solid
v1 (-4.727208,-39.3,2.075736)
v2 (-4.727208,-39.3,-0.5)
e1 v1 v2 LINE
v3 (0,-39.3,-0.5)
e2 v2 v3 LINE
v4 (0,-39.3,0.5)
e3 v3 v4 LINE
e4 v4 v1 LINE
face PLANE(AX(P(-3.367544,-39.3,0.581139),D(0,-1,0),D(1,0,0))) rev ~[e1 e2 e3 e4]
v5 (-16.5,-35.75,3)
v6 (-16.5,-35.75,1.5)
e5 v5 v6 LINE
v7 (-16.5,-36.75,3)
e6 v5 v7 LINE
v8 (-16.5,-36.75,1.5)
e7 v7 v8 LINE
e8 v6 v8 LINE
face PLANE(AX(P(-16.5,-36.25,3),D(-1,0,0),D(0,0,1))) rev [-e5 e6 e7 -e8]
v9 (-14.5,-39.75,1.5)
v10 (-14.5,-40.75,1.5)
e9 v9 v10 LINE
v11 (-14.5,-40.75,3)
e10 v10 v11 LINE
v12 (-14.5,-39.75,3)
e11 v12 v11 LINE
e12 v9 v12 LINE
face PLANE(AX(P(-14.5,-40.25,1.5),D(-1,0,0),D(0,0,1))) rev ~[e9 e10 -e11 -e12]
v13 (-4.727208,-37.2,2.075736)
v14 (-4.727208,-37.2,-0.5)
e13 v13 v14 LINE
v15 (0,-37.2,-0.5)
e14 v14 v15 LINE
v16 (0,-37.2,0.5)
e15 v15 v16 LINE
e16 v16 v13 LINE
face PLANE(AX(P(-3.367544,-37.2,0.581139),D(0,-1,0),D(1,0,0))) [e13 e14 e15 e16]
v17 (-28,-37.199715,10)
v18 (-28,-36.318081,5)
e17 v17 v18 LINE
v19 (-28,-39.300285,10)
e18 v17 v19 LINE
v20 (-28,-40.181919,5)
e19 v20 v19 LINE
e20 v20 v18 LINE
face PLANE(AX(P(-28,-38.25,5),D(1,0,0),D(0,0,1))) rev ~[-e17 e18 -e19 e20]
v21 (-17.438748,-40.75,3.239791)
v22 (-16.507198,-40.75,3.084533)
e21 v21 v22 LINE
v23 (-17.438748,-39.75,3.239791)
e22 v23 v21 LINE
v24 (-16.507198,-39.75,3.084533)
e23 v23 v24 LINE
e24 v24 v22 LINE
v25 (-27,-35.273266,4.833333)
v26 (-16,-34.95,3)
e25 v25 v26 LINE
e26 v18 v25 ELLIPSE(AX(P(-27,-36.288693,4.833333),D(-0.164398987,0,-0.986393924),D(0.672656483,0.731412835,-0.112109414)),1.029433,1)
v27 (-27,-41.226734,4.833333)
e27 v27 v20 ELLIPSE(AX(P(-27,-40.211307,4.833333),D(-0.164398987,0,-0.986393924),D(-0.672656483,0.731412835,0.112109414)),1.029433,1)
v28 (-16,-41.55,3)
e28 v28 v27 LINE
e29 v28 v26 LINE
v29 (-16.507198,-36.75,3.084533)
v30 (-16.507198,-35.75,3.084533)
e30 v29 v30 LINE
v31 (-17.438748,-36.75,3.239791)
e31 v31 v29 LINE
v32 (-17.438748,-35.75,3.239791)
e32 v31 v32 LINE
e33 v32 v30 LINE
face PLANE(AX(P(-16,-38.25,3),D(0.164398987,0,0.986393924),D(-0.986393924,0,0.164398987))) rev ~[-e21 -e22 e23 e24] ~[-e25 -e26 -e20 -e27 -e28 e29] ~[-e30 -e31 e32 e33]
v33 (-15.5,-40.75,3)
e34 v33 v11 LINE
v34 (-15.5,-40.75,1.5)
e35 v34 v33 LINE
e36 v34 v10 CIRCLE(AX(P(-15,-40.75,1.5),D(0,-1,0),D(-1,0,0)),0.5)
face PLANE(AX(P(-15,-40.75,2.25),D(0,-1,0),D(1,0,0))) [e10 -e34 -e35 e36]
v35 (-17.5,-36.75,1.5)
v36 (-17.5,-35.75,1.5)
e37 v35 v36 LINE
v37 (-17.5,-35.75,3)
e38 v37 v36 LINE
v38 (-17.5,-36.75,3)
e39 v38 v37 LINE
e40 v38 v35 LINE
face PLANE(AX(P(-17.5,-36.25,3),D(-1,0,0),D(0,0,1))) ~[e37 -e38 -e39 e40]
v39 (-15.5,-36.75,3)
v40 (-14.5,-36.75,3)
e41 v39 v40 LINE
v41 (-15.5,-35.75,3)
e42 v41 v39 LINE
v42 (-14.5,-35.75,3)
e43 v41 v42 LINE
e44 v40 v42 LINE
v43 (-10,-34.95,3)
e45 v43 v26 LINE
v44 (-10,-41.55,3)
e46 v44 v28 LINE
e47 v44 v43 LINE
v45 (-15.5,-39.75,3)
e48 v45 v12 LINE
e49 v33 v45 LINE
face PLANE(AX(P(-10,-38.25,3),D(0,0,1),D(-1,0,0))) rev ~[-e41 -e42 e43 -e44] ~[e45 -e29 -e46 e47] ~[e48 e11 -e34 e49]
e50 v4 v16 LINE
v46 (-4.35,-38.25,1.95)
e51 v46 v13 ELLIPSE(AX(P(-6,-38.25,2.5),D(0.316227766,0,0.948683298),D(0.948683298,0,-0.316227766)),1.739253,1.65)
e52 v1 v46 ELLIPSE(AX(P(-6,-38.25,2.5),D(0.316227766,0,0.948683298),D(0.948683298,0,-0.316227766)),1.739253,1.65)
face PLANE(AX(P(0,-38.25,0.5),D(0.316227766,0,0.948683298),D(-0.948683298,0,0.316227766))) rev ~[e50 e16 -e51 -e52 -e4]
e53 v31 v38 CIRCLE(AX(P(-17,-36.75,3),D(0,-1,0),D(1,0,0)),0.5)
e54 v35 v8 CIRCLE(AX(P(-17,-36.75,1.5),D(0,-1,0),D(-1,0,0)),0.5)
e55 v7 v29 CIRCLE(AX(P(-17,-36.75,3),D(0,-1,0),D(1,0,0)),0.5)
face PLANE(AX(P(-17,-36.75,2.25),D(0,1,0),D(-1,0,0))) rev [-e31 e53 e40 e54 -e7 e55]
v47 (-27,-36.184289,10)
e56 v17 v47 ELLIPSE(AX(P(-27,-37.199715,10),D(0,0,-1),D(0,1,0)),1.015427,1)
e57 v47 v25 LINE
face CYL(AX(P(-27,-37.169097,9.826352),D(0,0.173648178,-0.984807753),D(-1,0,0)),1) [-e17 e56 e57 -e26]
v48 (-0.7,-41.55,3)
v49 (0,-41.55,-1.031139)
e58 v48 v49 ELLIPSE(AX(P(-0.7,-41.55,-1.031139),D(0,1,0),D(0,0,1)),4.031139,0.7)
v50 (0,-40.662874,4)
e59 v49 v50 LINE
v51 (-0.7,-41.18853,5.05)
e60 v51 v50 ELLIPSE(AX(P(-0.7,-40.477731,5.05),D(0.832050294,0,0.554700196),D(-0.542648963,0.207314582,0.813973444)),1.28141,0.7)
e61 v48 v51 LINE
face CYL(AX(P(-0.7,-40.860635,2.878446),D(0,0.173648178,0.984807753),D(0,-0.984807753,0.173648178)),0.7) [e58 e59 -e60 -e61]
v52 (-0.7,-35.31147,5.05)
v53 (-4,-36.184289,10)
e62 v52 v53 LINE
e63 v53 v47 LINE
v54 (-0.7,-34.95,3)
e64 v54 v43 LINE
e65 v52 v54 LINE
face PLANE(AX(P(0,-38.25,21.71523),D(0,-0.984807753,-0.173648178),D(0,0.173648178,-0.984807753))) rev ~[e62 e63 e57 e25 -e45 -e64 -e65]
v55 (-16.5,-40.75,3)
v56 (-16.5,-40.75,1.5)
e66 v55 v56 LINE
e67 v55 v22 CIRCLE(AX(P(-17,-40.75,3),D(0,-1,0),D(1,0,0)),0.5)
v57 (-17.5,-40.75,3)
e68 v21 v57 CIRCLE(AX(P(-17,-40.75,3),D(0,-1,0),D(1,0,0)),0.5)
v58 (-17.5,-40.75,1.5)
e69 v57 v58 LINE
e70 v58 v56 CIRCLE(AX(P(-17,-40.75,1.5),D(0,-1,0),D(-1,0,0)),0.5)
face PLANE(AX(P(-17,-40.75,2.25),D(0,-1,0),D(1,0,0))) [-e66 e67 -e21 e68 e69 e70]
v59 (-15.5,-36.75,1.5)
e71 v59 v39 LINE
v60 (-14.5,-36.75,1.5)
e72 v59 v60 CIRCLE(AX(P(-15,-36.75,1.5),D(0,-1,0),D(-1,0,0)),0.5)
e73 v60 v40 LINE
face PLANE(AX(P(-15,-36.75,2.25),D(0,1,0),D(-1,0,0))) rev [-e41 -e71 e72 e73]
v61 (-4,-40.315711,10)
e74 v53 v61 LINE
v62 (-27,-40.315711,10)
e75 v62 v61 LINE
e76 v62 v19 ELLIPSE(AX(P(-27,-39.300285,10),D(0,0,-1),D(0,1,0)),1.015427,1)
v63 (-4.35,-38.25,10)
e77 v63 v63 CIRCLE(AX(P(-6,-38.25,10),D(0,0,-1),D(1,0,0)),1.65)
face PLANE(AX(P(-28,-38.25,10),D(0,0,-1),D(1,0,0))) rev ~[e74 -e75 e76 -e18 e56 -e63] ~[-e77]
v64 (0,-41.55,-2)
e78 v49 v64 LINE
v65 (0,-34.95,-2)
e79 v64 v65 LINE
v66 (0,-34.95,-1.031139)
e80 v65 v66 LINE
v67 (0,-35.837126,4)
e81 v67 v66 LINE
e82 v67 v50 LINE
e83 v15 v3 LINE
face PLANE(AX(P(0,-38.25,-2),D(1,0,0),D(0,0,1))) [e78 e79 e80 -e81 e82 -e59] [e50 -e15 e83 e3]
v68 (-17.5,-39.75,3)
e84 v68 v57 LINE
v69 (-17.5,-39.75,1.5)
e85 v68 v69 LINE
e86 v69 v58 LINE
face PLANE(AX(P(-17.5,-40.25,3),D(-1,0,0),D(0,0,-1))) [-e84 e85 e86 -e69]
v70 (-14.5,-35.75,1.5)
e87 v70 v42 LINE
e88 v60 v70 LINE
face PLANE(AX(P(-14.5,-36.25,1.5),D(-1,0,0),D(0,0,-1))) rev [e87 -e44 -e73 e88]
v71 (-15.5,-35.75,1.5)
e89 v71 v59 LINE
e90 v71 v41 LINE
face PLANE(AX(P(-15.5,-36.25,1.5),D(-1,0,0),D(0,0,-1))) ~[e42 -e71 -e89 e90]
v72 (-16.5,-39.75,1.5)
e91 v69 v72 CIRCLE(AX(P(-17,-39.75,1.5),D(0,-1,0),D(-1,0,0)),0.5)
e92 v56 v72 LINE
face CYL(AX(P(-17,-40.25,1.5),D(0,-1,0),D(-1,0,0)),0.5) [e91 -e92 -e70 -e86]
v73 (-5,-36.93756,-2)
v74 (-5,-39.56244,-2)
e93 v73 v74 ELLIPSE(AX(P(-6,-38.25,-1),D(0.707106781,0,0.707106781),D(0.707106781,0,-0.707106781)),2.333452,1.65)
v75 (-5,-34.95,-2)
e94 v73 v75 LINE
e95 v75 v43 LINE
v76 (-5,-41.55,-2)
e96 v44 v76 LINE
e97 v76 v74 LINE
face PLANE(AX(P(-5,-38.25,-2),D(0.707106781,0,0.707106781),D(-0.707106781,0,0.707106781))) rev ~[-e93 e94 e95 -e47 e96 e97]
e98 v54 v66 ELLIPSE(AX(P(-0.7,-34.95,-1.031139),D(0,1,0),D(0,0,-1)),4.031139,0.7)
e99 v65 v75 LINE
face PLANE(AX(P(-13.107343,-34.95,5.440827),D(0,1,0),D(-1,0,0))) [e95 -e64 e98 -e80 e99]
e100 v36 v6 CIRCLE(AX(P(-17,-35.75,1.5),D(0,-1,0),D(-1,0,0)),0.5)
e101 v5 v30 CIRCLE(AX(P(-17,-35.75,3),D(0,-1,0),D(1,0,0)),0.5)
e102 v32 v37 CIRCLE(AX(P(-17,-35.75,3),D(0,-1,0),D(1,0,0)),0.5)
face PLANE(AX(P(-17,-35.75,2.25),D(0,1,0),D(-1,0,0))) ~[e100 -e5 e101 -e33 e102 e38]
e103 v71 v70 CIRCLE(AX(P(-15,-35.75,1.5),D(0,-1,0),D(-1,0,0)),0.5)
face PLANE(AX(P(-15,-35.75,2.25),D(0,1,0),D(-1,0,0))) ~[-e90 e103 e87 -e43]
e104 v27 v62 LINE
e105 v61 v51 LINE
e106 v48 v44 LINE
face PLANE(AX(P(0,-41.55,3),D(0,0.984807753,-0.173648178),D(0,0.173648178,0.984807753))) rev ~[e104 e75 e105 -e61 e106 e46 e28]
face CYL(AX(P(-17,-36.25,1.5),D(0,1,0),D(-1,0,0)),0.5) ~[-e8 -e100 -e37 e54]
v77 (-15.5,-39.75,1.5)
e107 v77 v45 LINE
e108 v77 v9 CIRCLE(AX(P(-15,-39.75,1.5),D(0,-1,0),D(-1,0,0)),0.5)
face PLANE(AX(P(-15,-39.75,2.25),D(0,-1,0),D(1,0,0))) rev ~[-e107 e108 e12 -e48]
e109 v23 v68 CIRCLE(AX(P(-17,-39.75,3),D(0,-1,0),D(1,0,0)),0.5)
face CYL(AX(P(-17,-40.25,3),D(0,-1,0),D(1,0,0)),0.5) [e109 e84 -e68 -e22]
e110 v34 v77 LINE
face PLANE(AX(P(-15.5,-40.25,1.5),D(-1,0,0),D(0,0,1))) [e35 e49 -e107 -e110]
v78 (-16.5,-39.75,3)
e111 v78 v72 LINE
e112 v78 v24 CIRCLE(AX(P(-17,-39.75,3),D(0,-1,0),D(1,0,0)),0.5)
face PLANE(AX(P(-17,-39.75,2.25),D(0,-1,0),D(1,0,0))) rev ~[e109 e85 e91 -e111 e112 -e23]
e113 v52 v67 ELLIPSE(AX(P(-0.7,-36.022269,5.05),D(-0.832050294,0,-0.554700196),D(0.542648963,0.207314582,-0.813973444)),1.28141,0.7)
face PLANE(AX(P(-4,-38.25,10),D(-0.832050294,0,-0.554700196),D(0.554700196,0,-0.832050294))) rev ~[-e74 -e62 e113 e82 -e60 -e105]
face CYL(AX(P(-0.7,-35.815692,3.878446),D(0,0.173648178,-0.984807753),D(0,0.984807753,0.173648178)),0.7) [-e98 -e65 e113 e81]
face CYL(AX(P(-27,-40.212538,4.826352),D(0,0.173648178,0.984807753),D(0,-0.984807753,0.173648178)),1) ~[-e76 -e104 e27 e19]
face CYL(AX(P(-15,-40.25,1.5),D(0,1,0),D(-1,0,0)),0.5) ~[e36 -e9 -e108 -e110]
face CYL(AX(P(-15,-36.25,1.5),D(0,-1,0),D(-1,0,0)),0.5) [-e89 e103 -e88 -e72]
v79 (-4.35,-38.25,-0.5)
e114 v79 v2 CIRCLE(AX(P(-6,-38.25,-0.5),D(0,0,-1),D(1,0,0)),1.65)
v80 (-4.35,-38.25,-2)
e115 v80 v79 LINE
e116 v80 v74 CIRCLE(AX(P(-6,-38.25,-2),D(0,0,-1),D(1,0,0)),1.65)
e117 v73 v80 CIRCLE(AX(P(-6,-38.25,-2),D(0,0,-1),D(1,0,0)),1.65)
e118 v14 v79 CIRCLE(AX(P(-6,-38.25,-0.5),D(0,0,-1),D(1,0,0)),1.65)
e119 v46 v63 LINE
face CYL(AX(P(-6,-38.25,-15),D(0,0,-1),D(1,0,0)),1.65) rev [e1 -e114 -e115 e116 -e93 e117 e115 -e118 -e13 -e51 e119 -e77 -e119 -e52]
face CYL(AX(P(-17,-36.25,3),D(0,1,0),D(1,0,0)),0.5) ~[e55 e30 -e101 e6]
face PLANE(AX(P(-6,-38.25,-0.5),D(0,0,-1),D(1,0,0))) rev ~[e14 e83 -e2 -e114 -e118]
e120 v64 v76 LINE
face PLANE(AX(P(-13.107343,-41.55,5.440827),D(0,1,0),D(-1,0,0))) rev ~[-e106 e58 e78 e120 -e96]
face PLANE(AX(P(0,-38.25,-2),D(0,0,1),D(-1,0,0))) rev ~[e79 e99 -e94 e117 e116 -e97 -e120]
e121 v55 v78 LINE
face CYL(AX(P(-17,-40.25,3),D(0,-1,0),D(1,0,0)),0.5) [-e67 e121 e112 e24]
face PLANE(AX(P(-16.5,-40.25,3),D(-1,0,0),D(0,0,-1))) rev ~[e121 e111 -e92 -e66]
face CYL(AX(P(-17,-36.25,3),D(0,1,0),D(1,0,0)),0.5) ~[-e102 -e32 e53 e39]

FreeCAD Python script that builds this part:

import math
import FreeCAD as App
import Part
import Sketcher

V = App.Vector
Q = App.Units.Quantity


def edges_at(feature, points):
    """Names of the edges that pass closest to the given points."""
    edges = feature.Shape.Edges
    near = lambda p: min(range(len(edges)), key=lambda i: edges[i].distToShape(Part.Vertex(*p))[0])
    return sorted({f"Edge{near(p) + 1}" for p in points})

doc = App.newDocument("Part")
params = doc.addObject("Spreadsheet::Sheet", "Params")
for row, (alias, value) in enumerate([
    ("sketch1_diameter", "3.3 mm"),
    ("pad1_length", "30 mm"),
    ("sketch2_width", "6 mm"),
    ("sketch2_height", "3 mm"),
    ("sketch2_height2", "1 mm"),
    ("pad2_length", "2.1 mm"),
    ("sketch3_width", "24 mm"),
    ("sketch3_width2", "6 mm"),
    ("sketch3_width3", "5 mm"),
    ("pad3_length", "6.6 mm"),
    ("sketch4_width", "26 mm"),
    ("sketch4_height", "3 mm"),
    ("sketch4_width2", "9.7 mm"),
    ("sketch5_radius", "0.5 mm"),
    ("sketch5_height", "1.5 mm"),
    ("pad4_length", "1 mm"),
    ("fillet_radius", "0.7 mm"),
    ("fillet2_radius", "1 mm"),
], start=1):
    params.set(f"A{row}", alias)
    params.set(f"B{row}", "=" + value)
    params.setAlias(f"B{row}", alias)

body = doc.addObject("PartDesign::Body", "Body")

sketch1 = doc.addObject("Sketcher::SketchObject", "Sketch")
body.addObject(sketch1)
sketch1.AttachmentSupport = (doc.XY_Plane, [""])
sketch1.MapMode = "FlatFace"
sketch1.AttachmentOffset = App.Placement(V(0, 0, -15), App.Rotation())
sketch1.addGeometry(Part.Circle(V(-6, 0, 0), V(0, 0, 1), 1.65), False)
sketch1.addConstraint([
    Sketcher.Constraint("PointOnObject", 0, 3, -1),
    Sketcher.Constraint("Diameter", 0, 3.3),
    Sketcher.Constraint("DistanceX", 0, 3, -1, 1, 6.0),
])
sketch1.setExpression("Constraints[1]", "Params.sketch1_diameter")
pad1 = doc.addObject("PartDesign::Pad", "Pad")
body.addObject(pad1)
pad1.Profile = sketch1
pad1.setExpression("Length", "Params.pad1_length")
body2 = doc.addObject("PartDesign::Body", "Body001")

sketch2 = doc.addObject("Sketcher::SketchObject", "Sketch001")
body2.addObject(sketch2)
sketch2.AttachmentSupport = (doc.getObject("XZ_Plane001"), [""])
sketch2.MapMode = "FlatFace"
sketch2.addGeometry([
    Part.LineSegment(V(-6, 2.5, 0), V(-6, -0.5, 0)),
    Part.LineSegment(V(-6, -0.5, 0), V(0, -0.5, 0)),
    Part.LineSegment(V(0, -0.5, 0), V(0, 0.5, 0)),
    Part.LineSegment(V(0, 0.5, 0), V(-6, 2.5, 0)),
], False)
sketch2.addConstraint([
    Sketcher.Constraint("Coincident", 0, 2, 1, 1),
    Sketcher.Constraint("Coincident", 1, 2, 2, 1),
    Sketcher.Constraint("Coincident", 2, 2, 3, 1),
    Sketcher.Constraint("Coincident", 3, 2, 0, 1),
    Sketcher.Constraint("Vertical", 0),
    Sketcher.Constraint("Horizontal", 1),
    Sketcher.Constraint("Vertical", 2),
    Sketcher.Constraint("Symmetric", 1, 2, 2, 2, -1, 1),
    Sketcher.Constraint("DistanceX", 1, 1, 1, 2, 6.0),
    Sketcher.Constraint("DistanceY", 0, 2, 0, 1, 3.0),
    Sketcher.Constraint("DistanceY", 2, 1, 2, 2, 1.0),
])
sketch2.setExpression("Constraints[8]", "Params.sketch2_width")
sketch2.setExpression("Constraints[9]", "Params.sketch2_height")
sketch2.setExpression("Constraints[10]", "Params.sketch2_height2")
pad2 = doc.addObject("PartDesign::Pad", "Pad001")
body2.addObject(pad2)
pad2.Profile = sketch2
pad2.setExpression("Length", "Params.pad2_length")
pad2.Midplane = True
body3 = doc.addObject("PartDesign::Body", "Body002")

sketch3 = doc.addObject("Sketcher::SketchObject", "Sketch002")
body3.addObject(sketch3)
sketch3.AttachmentSupport = (doc.getObject("XZ_Plane002"), [""])
sketch3.MapMode = "FlatFace"
sketch3.addGeometry([
    Part.LineSegment(V(0, -2, 0), V(0, 4, 0)),
    Part.LineSegment(V(0, 4, 0), V(-4, 10, 0)),
    Part.LineSegment(V(-4, 10, 0), V(-28, 10, 0)),
    Part.LineSegment(V(-28, 10, 0), V(-28, 5, 0)),
    Part.LineSegment(V(-28, 5, 0), V(-16, 3, 0)),
    Part.LineSegment(V(-16, 3, 0), V(-10, 3, 0)),
    Part.LineSegment(V(-10, 3, 0), V(-5, -2, 0)),
    Part.LineSegment(V(-5, -2, 0), V(0, -2, 0)),
], False)
sketch3.addConstraint([
    Sketcher.Constraint("Coincident", 0, 2, 1, 1),
    Sketcher.Constraint("Coincident", 1, 2, 2, 1),
    Sketcher.Constraint("Coincident", 2, 2, 3, 1),
    Sketcher.Constraint("Coincident", 3, 2, 4, 1),
    Sketcher.Constraint("Coincident", 4, 2, 5, 1),
    Sketcher.Constraint("Coincident", 5, 2, 6, 1),
    Sketcher.Constraint("Coincident", 6, 2, 7, 1),
    Sketcher.Constraint("Coincident", 7, 2, 0, 1),
    Sketcher.Constraint("Vertical", 0),
    Sketcher.Constraint("Horizontal", 2),
    Sketcher.Constraint("Vertical", 3),
    Sketcher.Constraint("Horizontal", 5),
    Sketcher.Constraint("Horizontal", 7),
    Sketcher.Constraint("PointOnObject", 0, 2, -2),
    Sketcher.Constraint("Equal", 5, 0),
    Sketcher.Constraint("Equal", 7, 3),
    Sketcher.Constraint("DistanceX", 2, 2, 2, 1, 24.0),
    Sketcher.Constraint("DistanceX", 5, 1, 5, 2, 6.0),
    Sketcher.Constraint("DistanceX", 7, 1, 7, 2, 5.0),
    Sketcher.Constraint("Angle", 6, Q("-45 deg")),
    Sketcher.Constraint("DistanceY", -1, 1, 0, 2, 4.0),
    Sketcher.Constraint("DistanceX", 1, 2, -1, 1, 4.0),
    Sketcher.Constraint("DistanceY", -1, 1, 1, 2, 10.0),
    Sketcher.Constraint("DistanceX", 4, 2, -1, 1, 16.0),
])
sketch3.setExpression("Constraints[16]", "Params.sketch3_width")
sketch3.setExpression("Constraints[17]", "Params.sketch3_width2")
sketch3.setExpression("Constraints[18]", "Params.sketch3_width3")
pad3 = doc.addObject("PartDesign::Pad", "Pad002")
body3.addObject(pad3)
pad3.Profile = sketch3
pad3.setExpression("Length", "Params.pad3_length")
pad3.Midplane = True

sketch4 = doc.addObject("Sketcher::SketchObject", "Sketch003")
body3.addObject(sketch4)
sketch4.AttachmentSupport = (doc.getObject("YZ_Plane002"), [""])
sketch4.MapMode = "FlatFace"
sketch4.addGeometry([
    Part.LineSegment(V(-3.3, 0, 0), V(-3.3, 3, 0)),
    Part.LineSegment(V(-3.3, 3, 0), V(0, 21.71523, 0)),
    Part.LineSegment(V(0, 21.71523, 0), V(3.3, 3, 0)),
    Part.LineSegment(V(3.3, 3, 0), V(3.3, 0, 0)),
    Part.LineSegment(V(3.3, 0, 0), V(13, 0, 0)),
    Part.LineSegment(V(13, 0, 0), V(13, 26, 0)),
    Part.LineSegment(V(13, 26, 0), V(-13, 26, 0)),
    Part.LineSegment(V(-13, 26, 0), V(-13, 0, 0)),
    Part.LineSegment(V(-13, 0, 0), V(-3.3, 0, 0)),
], False)
sketch4.addConstraint([
    Sketcher.Constraint("Coincident", 0, 2, 1, 1),
    Sketcher.Constraint("Coincident", 1, 2, 2, 1),
    Sketcher.Constraint("Coincident", 2, 2, 3, 1),
    Sketcher.Constraint("Coincident", 3, 2, 4, 1),
    Sketcher.Constraint("Coincident", 4, 2, 5, 1),
    Sketcher.Constraint("Coincident", 5, 2, 6, 1),
    Sketcher.Constraint("Coincident", 6, 2, 7, 1),
    Sketcher.Constraint("Coincident", 7, 2, 8, 1),
    Sketcher.Constraint("Coincident", 8, 2, 0, 1),
    Sketcher.Constraint("Vertical", 0),
    Sketcher.Constraint("Vertical", 3),
    Sketcher.Constraint("Horizontal", 4),
    Sketcher.Constraint("Vertical", 5),
    Sketcher.Constraint("Horizontal", 6),
    Sketcher.Constraint("Vertical", 7),
    Sketcher.Constraint("Horizontal", 8),
    Sketcher.Constraint("Symmetric", 4, 2, 7, 2, -1, 1),
    Sketcher.Constraint("Symmetric", 0, 2, 2, 2, -2),
    Sketcher.Constraint("PointOnObject", 1, 2, -2),
    Sketcher.Constraint("PointOnObject", 3, 2, -1),
    Sketcher.Constraint("Equal", 6, 5),
    Sketcher.Constraint("DistanceX", 6, 2, 6, 1, 26.0),
    Sketcher.Constraint("DistanceY", 0, 1, 0, 2, 3.0),
    Sketcher.Constraint("Angle", 1, Q("80 deg")),
    Sketcher.Constraint("DistanceX", 4, 1, 4, 2, 9.7),
])
sketch4.setExpression("Constraints[21]", "Params.sketch4_width")
sketch4.setExpression("Constraints[22]", "Params.sketch4_height")
sketch4.setExpression("Constraints[24]", "Params.sketch4_width2")
pocket1 = doc.addObject("PartDesign::Pocket", "Pocket")
body3.addObject(pocket1)
pocket1.Profile = sketch4
pocket1.Type = "ThroughAll"

sketch5 = doc.addObject("Sketcher::SketchObject", "Sketch004")
body3.addObject(sketch5)
sketch5.AttachmentSupport = (doc.getObject("XZ_Plane002"), [""])
sketch5.MapMode = "FlatFace"
sketch5.AttachmentOffset = App.Placement(V(0, 0, 2), App.Rotation())
sketch5.addGeometry([
    Part.ArcOfCircle(Part.Circle(V(-15, 1.5, 0), V(0, 0, 1), 0.5), math.radians(180), math.radians(360)),
    Part.LineSegment(V(-14.5, 1.5, 0), V(-14.5, 3, 0)),
    Part.ArcOfCircle(Part.Circle(V(-15, 3, 0), V(0, 0, 1), 0.5), math.radians(0), math.radians(180)),
    Part.LineSegment(V(-15.5, 3, 0), V(-15.5, 1.5, 0)),
    Part.ArcOfCircle(Part.Circle(V(-17, 3, 0), V(0, 0, 1), 0.5), math.radians(0), math.radians(180)),
    Part.LineSegment(V(-17.5, 3, 0), V(-17.5, 1.5, 0)),
    Part.ArcOfCircle(Part.Circle(V(-17, 1.5, 0), V(0, 0, 1), 0.5), math.radians(180), math.radians(360)),
    Part.LineSegment(V(-16.5, 1.5, 0), V(-16.5, 3, 0)),
], False)
sketch5.addConstraint([
    Sketcher.Constraint("Tangent", 0, 2, 1, 1),
    Sketcher.Constraint("Tangent", 1, 2, 2, 1),
    Sketcher.Constraint("Tangent", 2, 2, 3, 1),
    Sketcher.Constraint("Tangent", 3, 2, 0, 1),
    Sketcher.Constraint("Tangent", 4, 2, 5, 1),
    Sketcher.Constraint("Tangent", 5, 2, 6, 1),
    Sketcher.Constraint("Tangent", 6, 2, 7, 1),
    Sketcher.Constraint("Tangent", 7, 2, 4, 1),
    Sketcher.Constraint("Vertical", 1),
    Sketcher.Constraint("Vertical", 3),
    Sketcher.Constraint("Vertical", 5),
    Sketcher.Constraint("Vertical", 7),
    Sketcher.Constraint("Equal", 2, 4),
    Sketcher.Constraint("Horizontal", 2, 3, 4, 3),
    Sketcher.Constraint("Horizontal", 0, 3, 6, 3),
    Sketcher.Constraint("Radius", 0, 0.5),
    Sketcher.Constraint("DistanceY", 1, 1, 1, 2, 1.5),
    Sketcher.Constraint("DistanceX", 0, 3, -1, 1, 15.0),
    Sketcher.Constraint("DistanceY", -1, 1, 2, 3, 3.0),
    Sketcher.Constraint("DistanceX", 4, 3, -1, 1, 17.0),
])
sketch5.setExpression("Constraints[15]", "Params.sketch5_radius")
sketch5.setExpression("Constraints[16]", "Params.sketch5_height")
pad4 = doc.addObject("PartDesign::Pad", "Pad003")
body3.addObject(pad4)
pad4.Profile = sketch5
pad4.setExpression("Length", "Params.pad4_length")
pad4.Midplane = True
doc.recompute()

mirrored = doc.addObject("PartDesign::Mirrored", "Mirrored")
body3.addObject(mirrored)
mirrored.Originals = [pad4]
mirrored.MirrorPlane = (doc.getObject("XZ_Plane002"), [""])
body3.Tip = mirrored
doc.recompute()

fillet = doc.addObject("PartDesign::Fillet", "Fillet")
body3.addObject(fillet)
fillet.Base = (mirrored, edges_at(mirrored, [(0, -3.212, 3.5), (0, 3.212, 3.5)]))
fillet.setExpression("Radius", "Params.fillet_radius")
doc.recompute()

fillet2 = doc.addObject("PartDesign::Fillet", "Fillet001")
body3.addObject(fillet2)
fillet2.Base = (fillet, edges_at(fillet, [(-28, -2.507, 7.5), (-28, 2.507, 7.5)]))
fillet2.setExpression("Radius", "Params.fillet2_radius")
doc.recompute()

boolean = doc.addObject("PartDesign::Boolean", "Boolean")
body3.addObject(boolean)
boolean.Type = "Cut"
boolean.addObjects([body])
doc.recompute()

boolean2 = doc.addObject("PartDesign::Boolean", "Boolean001")
body3.addObject(boolean2)
boolean2.Type = "Cut"
boolean2.addObjects([body2])
body4 = doc.addObject("PartDesign::Body", "Body003")
doc.recompute()

body3.Placement = App.Placement(V(0, -38.25, 0), App.Rotation(V(0, 0, 1), 0))
boolean3 = doc.addObject("PartDesign::Boolean", "Boolean002")
body4.addObject(boolean3)
boolean3.Type = "Fuse"
boolean3.addObjects([body3])

doc.recompute()
